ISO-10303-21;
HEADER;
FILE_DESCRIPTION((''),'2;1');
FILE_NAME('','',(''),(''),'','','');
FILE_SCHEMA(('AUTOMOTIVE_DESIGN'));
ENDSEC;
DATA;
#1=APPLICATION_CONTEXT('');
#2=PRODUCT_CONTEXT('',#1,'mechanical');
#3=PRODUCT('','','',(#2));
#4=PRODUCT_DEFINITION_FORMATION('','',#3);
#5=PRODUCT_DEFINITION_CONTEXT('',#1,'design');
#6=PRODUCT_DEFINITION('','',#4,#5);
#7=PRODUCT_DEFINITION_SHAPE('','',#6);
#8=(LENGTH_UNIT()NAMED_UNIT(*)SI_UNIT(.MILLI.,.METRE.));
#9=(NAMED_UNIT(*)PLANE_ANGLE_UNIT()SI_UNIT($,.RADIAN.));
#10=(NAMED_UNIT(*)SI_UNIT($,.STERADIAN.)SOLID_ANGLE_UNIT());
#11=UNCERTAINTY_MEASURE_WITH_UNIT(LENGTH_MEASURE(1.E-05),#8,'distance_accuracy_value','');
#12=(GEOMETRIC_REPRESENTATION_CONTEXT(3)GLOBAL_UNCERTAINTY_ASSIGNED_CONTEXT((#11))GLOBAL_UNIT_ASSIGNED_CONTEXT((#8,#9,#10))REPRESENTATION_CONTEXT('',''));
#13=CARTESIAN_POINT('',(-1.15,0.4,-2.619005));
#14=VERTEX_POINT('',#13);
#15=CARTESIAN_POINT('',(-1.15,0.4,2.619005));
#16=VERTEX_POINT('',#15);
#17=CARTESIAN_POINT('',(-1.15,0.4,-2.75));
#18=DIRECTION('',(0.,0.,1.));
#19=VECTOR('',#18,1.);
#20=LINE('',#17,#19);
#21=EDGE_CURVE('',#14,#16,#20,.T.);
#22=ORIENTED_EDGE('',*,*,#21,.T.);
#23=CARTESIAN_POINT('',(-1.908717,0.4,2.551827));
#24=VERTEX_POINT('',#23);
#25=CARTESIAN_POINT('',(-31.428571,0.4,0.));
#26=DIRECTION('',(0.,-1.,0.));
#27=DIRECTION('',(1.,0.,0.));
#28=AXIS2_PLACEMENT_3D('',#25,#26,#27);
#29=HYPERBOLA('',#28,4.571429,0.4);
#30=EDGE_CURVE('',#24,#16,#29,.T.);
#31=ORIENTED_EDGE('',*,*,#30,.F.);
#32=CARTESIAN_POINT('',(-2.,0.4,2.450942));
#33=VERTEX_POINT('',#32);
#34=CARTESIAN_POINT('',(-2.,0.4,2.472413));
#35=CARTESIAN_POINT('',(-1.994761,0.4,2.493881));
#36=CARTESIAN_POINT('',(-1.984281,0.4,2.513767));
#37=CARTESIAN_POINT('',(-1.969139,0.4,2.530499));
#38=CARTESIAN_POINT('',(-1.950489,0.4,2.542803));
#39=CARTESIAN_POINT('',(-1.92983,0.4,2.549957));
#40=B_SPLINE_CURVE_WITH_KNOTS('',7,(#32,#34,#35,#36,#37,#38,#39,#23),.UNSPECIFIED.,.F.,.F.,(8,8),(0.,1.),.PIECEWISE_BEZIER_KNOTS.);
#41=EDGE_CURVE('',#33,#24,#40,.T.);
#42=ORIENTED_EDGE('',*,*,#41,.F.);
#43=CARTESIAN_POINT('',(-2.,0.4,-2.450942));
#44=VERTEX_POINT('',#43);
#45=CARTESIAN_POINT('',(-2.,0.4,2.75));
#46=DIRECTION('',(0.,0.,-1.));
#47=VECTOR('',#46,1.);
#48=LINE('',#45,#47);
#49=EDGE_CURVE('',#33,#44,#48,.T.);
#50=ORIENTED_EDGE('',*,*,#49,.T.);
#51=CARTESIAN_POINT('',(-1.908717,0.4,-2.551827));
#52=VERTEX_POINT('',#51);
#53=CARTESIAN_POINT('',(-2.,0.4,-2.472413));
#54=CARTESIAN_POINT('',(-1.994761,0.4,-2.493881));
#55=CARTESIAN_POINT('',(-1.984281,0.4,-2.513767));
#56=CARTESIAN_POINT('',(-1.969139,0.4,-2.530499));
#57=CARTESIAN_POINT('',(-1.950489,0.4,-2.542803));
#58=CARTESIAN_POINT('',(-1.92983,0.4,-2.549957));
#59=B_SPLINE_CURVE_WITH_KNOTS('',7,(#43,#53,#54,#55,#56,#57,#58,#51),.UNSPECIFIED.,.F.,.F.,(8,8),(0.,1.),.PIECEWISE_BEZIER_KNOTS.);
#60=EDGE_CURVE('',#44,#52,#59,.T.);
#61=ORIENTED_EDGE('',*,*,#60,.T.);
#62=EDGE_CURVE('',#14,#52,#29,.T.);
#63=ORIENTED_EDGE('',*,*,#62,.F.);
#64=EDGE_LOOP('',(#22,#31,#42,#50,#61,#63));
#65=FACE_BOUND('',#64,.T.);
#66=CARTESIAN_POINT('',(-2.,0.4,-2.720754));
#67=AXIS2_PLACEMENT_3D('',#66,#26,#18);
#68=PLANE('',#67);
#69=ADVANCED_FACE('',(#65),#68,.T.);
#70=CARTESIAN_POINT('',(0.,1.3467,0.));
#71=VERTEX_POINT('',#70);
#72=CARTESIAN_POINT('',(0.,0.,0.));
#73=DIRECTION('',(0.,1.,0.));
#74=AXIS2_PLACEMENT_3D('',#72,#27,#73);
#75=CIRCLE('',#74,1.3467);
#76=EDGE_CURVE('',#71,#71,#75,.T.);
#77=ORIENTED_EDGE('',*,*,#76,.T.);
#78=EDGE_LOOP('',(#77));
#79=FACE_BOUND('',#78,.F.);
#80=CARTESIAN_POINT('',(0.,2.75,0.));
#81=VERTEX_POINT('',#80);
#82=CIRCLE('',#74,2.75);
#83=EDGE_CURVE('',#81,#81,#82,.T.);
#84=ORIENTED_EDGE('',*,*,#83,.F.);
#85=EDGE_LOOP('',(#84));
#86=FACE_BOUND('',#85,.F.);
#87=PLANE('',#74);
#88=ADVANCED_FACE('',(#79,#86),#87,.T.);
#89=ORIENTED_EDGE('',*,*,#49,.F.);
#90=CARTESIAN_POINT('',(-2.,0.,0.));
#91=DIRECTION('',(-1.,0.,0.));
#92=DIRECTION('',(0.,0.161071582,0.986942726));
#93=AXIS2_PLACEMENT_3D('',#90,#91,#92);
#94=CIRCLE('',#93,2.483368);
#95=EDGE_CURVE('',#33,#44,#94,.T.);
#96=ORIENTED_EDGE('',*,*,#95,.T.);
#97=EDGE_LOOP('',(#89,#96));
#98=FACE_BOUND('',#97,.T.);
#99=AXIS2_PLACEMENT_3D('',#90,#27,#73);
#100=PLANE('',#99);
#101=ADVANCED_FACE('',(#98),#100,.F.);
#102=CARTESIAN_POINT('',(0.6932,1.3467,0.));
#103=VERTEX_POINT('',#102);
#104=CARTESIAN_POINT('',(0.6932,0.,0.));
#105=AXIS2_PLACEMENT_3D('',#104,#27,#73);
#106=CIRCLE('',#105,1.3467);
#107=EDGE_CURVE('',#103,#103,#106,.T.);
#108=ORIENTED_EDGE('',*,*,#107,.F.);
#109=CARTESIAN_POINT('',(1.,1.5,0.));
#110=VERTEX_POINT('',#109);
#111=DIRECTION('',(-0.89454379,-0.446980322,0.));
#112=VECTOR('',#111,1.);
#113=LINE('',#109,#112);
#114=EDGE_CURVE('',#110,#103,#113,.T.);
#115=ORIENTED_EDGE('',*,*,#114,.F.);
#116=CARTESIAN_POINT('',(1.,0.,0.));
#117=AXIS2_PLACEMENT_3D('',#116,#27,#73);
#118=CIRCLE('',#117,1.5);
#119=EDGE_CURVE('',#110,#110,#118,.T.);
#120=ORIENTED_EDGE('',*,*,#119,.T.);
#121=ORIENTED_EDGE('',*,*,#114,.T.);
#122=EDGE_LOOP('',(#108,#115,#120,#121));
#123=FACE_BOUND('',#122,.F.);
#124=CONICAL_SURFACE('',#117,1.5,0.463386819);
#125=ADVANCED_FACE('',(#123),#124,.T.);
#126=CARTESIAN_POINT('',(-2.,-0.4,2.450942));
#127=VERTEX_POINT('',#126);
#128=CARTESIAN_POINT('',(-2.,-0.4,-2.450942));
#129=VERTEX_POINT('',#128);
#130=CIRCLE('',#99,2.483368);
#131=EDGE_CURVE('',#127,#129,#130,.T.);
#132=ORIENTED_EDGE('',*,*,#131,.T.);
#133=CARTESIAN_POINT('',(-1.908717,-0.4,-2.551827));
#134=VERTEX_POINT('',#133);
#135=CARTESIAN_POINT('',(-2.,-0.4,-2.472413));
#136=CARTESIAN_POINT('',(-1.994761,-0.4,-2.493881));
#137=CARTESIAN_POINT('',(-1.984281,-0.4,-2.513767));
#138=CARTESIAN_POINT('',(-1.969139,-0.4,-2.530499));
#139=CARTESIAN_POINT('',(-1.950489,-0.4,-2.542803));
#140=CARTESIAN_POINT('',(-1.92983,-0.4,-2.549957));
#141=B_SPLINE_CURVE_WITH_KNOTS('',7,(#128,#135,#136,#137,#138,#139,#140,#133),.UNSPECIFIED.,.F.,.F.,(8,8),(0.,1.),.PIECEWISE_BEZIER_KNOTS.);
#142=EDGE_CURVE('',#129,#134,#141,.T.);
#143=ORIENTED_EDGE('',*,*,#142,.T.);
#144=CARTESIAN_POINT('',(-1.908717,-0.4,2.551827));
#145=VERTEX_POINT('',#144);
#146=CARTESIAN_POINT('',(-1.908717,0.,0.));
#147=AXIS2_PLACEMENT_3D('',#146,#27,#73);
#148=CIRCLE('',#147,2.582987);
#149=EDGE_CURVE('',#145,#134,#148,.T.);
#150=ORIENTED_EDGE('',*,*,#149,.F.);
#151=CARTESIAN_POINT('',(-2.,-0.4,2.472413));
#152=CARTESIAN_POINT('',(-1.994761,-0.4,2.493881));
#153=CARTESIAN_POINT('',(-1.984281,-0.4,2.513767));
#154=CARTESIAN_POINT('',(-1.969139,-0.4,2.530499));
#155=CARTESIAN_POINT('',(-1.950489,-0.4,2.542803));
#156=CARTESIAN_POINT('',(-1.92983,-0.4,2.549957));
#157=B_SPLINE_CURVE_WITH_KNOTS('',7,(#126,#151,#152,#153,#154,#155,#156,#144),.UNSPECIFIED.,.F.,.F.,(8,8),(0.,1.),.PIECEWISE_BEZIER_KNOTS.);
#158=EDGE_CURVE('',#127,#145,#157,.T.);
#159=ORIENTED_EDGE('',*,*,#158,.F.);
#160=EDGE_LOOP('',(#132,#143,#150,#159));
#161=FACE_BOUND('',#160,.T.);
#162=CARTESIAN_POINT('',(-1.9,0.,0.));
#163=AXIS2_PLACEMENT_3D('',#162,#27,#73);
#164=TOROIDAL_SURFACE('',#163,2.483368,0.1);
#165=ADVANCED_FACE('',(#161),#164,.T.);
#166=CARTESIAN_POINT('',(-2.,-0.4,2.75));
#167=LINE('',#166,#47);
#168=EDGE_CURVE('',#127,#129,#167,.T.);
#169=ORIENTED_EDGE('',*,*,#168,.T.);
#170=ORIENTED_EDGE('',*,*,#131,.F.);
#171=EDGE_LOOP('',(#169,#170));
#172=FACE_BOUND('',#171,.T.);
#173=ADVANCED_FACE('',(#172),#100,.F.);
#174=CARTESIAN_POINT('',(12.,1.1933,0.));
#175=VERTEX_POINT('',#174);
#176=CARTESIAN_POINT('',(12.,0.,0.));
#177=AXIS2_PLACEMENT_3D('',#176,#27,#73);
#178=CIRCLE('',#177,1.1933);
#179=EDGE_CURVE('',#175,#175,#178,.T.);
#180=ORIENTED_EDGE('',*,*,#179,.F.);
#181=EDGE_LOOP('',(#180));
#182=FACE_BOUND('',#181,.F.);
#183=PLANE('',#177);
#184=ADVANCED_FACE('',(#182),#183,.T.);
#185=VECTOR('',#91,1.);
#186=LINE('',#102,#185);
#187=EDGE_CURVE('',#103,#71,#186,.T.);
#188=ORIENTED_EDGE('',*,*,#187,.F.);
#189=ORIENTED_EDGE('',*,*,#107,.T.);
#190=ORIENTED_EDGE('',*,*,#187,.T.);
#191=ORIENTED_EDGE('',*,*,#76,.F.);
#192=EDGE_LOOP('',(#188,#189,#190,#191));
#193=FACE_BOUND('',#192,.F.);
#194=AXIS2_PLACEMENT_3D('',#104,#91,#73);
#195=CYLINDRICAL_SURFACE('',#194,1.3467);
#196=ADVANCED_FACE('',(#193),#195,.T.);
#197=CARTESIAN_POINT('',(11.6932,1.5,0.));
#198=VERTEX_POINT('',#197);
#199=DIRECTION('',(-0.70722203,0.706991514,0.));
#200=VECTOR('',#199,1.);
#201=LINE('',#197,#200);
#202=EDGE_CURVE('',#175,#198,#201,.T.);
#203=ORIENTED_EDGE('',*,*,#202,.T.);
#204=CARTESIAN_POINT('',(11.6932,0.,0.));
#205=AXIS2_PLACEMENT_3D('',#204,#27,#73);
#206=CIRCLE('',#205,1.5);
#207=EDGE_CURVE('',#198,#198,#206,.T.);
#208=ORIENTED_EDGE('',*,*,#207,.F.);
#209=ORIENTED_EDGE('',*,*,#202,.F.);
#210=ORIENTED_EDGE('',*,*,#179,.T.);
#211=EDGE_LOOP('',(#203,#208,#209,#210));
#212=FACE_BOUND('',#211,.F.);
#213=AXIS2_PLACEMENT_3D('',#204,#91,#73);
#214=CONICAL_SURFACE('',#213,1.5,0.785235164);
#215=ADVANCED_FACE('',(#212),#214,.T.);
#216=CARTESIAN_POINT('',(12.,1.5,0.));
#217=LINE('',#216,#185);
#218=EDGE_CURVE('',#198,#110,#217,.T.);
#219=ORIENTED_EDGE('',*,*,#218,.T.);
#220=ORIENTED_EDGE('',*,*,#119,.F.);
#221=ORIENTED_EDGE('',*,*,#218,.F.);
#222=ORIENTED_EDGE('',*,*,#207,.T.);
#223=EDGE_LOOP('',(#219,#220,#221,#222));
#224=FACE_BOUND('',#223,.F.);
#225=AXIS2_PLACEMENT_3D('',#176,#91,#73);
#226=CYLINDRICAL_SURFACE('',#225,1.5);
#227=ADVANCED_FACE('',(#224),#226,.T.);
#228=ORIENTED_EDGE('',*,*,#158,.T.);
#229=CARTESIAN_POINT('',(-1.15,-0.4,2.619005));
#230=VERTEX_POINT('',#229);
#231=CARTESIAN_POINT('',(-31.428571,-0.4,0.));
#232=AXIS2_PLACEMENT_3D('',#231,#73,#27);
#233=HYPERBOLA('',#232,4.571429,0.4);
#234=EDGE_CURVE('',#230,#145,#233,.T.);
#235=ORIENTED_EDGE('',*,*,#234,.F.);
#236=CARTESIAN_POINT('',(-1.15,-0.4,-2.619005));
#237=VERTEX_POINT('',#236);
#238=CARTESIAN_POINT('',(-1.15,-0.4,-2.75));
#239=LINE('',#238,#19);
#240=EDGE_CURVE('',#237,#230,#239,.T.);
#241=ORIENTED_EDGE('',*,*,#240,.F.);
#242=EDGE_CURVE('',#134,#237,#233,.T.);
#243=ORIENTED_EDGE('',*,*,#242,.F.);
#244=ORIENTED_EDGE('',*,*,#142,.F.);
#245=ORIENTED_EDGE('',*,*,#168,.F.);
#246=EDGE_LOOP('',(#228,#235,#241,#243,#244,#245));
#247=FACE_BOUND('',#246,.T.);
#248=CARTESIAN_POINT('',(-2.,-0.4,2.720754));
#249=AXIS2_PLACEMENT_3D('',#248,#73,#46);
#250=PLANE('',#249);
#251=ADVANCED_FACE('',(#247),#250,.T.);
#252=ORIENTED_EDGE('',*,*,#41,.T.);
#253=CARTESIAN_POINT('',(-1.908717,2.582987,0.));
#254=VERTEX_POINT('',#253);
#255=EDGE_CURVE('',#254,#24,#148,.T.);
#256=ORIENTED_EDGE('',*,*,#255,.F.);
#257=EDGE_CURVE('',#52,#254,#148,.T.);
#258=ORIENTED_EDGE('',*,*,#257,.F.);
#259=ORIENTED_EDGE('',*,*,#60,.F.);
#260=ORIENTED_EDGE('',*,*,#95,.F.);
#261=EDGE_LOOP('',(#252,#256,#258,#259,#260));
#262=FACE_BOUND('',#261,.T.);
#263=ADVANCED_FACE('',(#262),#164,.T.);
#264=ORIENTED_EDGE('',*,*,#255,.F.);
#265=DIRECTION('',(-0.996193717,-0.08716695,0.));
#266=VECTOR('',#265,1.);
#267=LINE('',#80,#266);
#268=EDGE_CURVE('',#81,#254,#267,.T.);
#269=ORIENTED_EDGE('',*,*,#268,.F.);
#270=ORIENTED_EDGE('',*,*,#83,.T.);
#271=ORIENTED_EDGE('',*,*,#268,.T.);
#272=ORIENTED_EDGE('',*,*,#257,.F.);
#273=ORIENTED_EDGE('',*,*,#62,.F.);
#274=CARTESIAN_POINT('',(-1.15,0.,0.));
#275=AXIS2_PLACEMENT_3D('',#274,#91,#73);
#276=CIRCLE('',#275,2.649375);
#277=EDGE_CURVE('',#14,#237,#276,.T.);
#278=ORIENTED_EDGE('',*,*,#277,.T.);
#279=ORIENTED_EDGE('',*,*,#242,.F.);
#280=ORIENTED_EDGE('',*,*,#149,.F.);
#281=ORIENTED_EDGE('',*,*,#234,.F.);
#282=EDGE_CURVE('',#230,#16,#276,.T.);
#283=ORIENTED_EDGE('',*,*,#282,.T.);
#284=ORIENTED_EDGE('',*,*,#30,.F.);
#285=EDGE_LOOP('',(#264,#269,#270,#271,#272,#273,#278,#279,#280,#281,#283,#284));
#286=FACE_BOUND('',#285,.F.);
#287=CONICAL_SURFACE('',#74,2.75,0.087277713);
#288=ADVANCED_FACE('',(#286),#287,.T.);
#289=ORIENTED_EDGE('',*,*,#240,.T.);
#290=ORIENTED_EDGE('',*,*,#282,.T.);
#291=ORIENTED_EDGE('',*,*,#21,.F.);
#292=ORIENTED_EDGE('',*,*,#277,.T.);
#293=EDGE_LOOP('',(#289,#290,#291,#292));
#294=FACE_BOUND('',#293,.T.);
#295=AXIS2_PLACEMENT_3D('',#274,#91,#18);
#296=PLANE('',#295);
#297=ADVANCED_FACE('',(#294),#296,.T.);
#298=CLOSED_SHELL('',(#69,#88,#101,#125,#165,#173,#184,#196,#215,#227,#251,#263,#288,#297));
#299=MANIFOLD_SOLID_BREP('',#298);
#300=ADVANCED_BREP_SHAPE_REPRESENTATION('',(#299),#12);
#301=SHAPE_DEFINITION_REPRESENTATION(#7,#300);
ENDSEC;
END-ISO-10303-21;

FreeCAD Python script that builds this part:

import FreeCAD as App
import Part
import Sketcher
from FreeCAD import Vector
Q = App.Units.Quantity


def edges_at(feature, points):
    """Names of the edges that pass closest to the given points."""
    edges = feature.Shape.Edges
    near = lambda p: min(range(len(edges)), key=lambda i: edges[i].distToShape(Part.Vertex(*p))[0])
    return sorted({f"Edge{near(p) + 1}" for p in points})


def add_polygon(sketch, points):
    """Adds a closed chain of lines whose ends are joined by coincident constraints."""
    first, n = sketch.GeometryCount, len(points)
    for a, b in zip(points, points[1:] + points[:1]):
        sketch.addGeometry(Part.LineSegment(App.Vector(*a, 0), App.Vector(*b, 0)), False)
    for i in range(n):
        sketch.addConstraint(Sketcher.Constraint("Coincident", first + i, 2, first + (i + 1) % n, 1))

doc = App.newDocument("Part")
body = doc.addObject("PartDesign::Body", "Body")

sketch1 = body.newObject("Sketcher::SketchObject", "Sketch")
sketch1.AttachmentSupport = (doc.getObject("XY_Plane"), [""])
sketch1.MapMode = "FlatFace"
add_polygon(sketch1, [(-2, 2.575), (-2, 0), (12, 0), (12, 1.5), (1, 1.5), (0.6932, 1.3467), (0, 1.3467), (0, 2.75)])
sketch1.addConstraint(Sketcher.Constraint("Vertical", 0))
sketch1.addConstraint(Sketcher.Constraint("Horizontal", 1))
sketch1.addConstraint(Sketcher.Constraint("Vertical", 2))
sketch1.addConstraint(Sketcher.Constraint("Horizontal", 3))
sketch1.addConstraint(Sketcher.Constraint("Horizontal", 5))
sketch1.addConstraint(Sketcher.Constraint("Vertical", 6))
sketch1.addConstraint(Sketcher.Constraint("PointOnObject", 0, 2, -1))
sketch1.addConstraint(Sketcher.Constraint("PointOnObject", 5, 2, -2))
sketch1.addConstraint(Sketcher.Constraint("DistanceX", 3, 2, 3, 1, Q("11 mm")))
sketch1.addConstraint(Sketcher.Constraint("DistanceX", 0, 2, -1, 1, Q("2 mm")))
sketch1.addConstraint(Sketcher.Constraint("DistanceX", -1, 1, 1, 2, Q("12 mm")))
sketch1.addConstraint(Sketcher.Constraint("Angle", 7, Q("-174.9994 deg")))
sketch1.addConstraint(Sketcher.Constraint("DistanceY", 2, 1, 2, 2, Q("1.5 mm")))
sketch1.addConstraint(Sketcher.Constraint("Angle", 4, Q("-153.45 deg")))
sketch1.addConstraint(Sketcher.Constraint("DistanceX", 4, 2, 3, 2, Q("0.3068 mm")))
sketch1.addConstraint(Sketcher.Constraint("DistanceY", 0, 2, 0, 1, Q("2.575 mm")))
revolution = body.newObject("PartDesign::Revolution", "Revolution")
revolution.Profile = sketch1
revolution.ReferenceAxis = (sketch1, ["H_Axis"])
revolution.Angle = 360
doc.recompute()

fillet = body.newObject("PartDesign::Fillet", "Fillet")
fillet.Base = (revolution, edges_at(revolution, [(-2, -2.575, 0)]))
fillet.Radius = 0.1

sketch2 = body.newObject("Sketcher::SketchObject", "Sketch001")
sketch2.AttachmentSupport = (doc.getObject("YZ_Plane"), [""])
sketch2.MapMode = "FlatFace"
sketch2.AttachmentOffset = App.Placement(Vector(0, 0, -2), App.Rotation())
add_polygon(sketch2, [(-0.4, 2.75), (0.4, 2.75), (0.4, -2.75), (-0.4, -2.75)])
sketch2.addConstraint(Sketcher.Constraint("Horizontal", 0))
sketch2.addConstraint(Sketcher.Constraint("Vertical", 1))
sketch2.addConstraint(Sketcher.Constraint("Horizontal", 2))
sketch2.addConstraint(Sketcher.Constraint("Vertical", 3))
sketch2.addConstraint(Sketcher.Constraint("Symmetric", 0, 2, 2, 2, -1, 1))
sketch2.addConstraint(Sketcher.Constraint("DistanceX", 0, 1, 0, 2, Q("0.8 mm")))
sketch2.addConstraint(Sketcher.Constraint("DistanceY", 1, 2, 1, 1, Q("5.5 mm")))
pocket1 = body.newObject("PartDesign::Pocket", "Pocket")
pocket1.Profile = sketch2
pocket1.Length = 0.85
pocket1.Reversed = True
doc.recompute()

chamfer = body.newObject("PartDesign::Chamfer", "Chamfer")
chamfer.Base = (pocket1, edges_at(pocket1, [(12, -1.5, 0)]))
chamfer.ChamferType = "Two distances"
chamfer.Size = 0.3067
chamfer.Size2 = 0.3068

doc.recompute()
